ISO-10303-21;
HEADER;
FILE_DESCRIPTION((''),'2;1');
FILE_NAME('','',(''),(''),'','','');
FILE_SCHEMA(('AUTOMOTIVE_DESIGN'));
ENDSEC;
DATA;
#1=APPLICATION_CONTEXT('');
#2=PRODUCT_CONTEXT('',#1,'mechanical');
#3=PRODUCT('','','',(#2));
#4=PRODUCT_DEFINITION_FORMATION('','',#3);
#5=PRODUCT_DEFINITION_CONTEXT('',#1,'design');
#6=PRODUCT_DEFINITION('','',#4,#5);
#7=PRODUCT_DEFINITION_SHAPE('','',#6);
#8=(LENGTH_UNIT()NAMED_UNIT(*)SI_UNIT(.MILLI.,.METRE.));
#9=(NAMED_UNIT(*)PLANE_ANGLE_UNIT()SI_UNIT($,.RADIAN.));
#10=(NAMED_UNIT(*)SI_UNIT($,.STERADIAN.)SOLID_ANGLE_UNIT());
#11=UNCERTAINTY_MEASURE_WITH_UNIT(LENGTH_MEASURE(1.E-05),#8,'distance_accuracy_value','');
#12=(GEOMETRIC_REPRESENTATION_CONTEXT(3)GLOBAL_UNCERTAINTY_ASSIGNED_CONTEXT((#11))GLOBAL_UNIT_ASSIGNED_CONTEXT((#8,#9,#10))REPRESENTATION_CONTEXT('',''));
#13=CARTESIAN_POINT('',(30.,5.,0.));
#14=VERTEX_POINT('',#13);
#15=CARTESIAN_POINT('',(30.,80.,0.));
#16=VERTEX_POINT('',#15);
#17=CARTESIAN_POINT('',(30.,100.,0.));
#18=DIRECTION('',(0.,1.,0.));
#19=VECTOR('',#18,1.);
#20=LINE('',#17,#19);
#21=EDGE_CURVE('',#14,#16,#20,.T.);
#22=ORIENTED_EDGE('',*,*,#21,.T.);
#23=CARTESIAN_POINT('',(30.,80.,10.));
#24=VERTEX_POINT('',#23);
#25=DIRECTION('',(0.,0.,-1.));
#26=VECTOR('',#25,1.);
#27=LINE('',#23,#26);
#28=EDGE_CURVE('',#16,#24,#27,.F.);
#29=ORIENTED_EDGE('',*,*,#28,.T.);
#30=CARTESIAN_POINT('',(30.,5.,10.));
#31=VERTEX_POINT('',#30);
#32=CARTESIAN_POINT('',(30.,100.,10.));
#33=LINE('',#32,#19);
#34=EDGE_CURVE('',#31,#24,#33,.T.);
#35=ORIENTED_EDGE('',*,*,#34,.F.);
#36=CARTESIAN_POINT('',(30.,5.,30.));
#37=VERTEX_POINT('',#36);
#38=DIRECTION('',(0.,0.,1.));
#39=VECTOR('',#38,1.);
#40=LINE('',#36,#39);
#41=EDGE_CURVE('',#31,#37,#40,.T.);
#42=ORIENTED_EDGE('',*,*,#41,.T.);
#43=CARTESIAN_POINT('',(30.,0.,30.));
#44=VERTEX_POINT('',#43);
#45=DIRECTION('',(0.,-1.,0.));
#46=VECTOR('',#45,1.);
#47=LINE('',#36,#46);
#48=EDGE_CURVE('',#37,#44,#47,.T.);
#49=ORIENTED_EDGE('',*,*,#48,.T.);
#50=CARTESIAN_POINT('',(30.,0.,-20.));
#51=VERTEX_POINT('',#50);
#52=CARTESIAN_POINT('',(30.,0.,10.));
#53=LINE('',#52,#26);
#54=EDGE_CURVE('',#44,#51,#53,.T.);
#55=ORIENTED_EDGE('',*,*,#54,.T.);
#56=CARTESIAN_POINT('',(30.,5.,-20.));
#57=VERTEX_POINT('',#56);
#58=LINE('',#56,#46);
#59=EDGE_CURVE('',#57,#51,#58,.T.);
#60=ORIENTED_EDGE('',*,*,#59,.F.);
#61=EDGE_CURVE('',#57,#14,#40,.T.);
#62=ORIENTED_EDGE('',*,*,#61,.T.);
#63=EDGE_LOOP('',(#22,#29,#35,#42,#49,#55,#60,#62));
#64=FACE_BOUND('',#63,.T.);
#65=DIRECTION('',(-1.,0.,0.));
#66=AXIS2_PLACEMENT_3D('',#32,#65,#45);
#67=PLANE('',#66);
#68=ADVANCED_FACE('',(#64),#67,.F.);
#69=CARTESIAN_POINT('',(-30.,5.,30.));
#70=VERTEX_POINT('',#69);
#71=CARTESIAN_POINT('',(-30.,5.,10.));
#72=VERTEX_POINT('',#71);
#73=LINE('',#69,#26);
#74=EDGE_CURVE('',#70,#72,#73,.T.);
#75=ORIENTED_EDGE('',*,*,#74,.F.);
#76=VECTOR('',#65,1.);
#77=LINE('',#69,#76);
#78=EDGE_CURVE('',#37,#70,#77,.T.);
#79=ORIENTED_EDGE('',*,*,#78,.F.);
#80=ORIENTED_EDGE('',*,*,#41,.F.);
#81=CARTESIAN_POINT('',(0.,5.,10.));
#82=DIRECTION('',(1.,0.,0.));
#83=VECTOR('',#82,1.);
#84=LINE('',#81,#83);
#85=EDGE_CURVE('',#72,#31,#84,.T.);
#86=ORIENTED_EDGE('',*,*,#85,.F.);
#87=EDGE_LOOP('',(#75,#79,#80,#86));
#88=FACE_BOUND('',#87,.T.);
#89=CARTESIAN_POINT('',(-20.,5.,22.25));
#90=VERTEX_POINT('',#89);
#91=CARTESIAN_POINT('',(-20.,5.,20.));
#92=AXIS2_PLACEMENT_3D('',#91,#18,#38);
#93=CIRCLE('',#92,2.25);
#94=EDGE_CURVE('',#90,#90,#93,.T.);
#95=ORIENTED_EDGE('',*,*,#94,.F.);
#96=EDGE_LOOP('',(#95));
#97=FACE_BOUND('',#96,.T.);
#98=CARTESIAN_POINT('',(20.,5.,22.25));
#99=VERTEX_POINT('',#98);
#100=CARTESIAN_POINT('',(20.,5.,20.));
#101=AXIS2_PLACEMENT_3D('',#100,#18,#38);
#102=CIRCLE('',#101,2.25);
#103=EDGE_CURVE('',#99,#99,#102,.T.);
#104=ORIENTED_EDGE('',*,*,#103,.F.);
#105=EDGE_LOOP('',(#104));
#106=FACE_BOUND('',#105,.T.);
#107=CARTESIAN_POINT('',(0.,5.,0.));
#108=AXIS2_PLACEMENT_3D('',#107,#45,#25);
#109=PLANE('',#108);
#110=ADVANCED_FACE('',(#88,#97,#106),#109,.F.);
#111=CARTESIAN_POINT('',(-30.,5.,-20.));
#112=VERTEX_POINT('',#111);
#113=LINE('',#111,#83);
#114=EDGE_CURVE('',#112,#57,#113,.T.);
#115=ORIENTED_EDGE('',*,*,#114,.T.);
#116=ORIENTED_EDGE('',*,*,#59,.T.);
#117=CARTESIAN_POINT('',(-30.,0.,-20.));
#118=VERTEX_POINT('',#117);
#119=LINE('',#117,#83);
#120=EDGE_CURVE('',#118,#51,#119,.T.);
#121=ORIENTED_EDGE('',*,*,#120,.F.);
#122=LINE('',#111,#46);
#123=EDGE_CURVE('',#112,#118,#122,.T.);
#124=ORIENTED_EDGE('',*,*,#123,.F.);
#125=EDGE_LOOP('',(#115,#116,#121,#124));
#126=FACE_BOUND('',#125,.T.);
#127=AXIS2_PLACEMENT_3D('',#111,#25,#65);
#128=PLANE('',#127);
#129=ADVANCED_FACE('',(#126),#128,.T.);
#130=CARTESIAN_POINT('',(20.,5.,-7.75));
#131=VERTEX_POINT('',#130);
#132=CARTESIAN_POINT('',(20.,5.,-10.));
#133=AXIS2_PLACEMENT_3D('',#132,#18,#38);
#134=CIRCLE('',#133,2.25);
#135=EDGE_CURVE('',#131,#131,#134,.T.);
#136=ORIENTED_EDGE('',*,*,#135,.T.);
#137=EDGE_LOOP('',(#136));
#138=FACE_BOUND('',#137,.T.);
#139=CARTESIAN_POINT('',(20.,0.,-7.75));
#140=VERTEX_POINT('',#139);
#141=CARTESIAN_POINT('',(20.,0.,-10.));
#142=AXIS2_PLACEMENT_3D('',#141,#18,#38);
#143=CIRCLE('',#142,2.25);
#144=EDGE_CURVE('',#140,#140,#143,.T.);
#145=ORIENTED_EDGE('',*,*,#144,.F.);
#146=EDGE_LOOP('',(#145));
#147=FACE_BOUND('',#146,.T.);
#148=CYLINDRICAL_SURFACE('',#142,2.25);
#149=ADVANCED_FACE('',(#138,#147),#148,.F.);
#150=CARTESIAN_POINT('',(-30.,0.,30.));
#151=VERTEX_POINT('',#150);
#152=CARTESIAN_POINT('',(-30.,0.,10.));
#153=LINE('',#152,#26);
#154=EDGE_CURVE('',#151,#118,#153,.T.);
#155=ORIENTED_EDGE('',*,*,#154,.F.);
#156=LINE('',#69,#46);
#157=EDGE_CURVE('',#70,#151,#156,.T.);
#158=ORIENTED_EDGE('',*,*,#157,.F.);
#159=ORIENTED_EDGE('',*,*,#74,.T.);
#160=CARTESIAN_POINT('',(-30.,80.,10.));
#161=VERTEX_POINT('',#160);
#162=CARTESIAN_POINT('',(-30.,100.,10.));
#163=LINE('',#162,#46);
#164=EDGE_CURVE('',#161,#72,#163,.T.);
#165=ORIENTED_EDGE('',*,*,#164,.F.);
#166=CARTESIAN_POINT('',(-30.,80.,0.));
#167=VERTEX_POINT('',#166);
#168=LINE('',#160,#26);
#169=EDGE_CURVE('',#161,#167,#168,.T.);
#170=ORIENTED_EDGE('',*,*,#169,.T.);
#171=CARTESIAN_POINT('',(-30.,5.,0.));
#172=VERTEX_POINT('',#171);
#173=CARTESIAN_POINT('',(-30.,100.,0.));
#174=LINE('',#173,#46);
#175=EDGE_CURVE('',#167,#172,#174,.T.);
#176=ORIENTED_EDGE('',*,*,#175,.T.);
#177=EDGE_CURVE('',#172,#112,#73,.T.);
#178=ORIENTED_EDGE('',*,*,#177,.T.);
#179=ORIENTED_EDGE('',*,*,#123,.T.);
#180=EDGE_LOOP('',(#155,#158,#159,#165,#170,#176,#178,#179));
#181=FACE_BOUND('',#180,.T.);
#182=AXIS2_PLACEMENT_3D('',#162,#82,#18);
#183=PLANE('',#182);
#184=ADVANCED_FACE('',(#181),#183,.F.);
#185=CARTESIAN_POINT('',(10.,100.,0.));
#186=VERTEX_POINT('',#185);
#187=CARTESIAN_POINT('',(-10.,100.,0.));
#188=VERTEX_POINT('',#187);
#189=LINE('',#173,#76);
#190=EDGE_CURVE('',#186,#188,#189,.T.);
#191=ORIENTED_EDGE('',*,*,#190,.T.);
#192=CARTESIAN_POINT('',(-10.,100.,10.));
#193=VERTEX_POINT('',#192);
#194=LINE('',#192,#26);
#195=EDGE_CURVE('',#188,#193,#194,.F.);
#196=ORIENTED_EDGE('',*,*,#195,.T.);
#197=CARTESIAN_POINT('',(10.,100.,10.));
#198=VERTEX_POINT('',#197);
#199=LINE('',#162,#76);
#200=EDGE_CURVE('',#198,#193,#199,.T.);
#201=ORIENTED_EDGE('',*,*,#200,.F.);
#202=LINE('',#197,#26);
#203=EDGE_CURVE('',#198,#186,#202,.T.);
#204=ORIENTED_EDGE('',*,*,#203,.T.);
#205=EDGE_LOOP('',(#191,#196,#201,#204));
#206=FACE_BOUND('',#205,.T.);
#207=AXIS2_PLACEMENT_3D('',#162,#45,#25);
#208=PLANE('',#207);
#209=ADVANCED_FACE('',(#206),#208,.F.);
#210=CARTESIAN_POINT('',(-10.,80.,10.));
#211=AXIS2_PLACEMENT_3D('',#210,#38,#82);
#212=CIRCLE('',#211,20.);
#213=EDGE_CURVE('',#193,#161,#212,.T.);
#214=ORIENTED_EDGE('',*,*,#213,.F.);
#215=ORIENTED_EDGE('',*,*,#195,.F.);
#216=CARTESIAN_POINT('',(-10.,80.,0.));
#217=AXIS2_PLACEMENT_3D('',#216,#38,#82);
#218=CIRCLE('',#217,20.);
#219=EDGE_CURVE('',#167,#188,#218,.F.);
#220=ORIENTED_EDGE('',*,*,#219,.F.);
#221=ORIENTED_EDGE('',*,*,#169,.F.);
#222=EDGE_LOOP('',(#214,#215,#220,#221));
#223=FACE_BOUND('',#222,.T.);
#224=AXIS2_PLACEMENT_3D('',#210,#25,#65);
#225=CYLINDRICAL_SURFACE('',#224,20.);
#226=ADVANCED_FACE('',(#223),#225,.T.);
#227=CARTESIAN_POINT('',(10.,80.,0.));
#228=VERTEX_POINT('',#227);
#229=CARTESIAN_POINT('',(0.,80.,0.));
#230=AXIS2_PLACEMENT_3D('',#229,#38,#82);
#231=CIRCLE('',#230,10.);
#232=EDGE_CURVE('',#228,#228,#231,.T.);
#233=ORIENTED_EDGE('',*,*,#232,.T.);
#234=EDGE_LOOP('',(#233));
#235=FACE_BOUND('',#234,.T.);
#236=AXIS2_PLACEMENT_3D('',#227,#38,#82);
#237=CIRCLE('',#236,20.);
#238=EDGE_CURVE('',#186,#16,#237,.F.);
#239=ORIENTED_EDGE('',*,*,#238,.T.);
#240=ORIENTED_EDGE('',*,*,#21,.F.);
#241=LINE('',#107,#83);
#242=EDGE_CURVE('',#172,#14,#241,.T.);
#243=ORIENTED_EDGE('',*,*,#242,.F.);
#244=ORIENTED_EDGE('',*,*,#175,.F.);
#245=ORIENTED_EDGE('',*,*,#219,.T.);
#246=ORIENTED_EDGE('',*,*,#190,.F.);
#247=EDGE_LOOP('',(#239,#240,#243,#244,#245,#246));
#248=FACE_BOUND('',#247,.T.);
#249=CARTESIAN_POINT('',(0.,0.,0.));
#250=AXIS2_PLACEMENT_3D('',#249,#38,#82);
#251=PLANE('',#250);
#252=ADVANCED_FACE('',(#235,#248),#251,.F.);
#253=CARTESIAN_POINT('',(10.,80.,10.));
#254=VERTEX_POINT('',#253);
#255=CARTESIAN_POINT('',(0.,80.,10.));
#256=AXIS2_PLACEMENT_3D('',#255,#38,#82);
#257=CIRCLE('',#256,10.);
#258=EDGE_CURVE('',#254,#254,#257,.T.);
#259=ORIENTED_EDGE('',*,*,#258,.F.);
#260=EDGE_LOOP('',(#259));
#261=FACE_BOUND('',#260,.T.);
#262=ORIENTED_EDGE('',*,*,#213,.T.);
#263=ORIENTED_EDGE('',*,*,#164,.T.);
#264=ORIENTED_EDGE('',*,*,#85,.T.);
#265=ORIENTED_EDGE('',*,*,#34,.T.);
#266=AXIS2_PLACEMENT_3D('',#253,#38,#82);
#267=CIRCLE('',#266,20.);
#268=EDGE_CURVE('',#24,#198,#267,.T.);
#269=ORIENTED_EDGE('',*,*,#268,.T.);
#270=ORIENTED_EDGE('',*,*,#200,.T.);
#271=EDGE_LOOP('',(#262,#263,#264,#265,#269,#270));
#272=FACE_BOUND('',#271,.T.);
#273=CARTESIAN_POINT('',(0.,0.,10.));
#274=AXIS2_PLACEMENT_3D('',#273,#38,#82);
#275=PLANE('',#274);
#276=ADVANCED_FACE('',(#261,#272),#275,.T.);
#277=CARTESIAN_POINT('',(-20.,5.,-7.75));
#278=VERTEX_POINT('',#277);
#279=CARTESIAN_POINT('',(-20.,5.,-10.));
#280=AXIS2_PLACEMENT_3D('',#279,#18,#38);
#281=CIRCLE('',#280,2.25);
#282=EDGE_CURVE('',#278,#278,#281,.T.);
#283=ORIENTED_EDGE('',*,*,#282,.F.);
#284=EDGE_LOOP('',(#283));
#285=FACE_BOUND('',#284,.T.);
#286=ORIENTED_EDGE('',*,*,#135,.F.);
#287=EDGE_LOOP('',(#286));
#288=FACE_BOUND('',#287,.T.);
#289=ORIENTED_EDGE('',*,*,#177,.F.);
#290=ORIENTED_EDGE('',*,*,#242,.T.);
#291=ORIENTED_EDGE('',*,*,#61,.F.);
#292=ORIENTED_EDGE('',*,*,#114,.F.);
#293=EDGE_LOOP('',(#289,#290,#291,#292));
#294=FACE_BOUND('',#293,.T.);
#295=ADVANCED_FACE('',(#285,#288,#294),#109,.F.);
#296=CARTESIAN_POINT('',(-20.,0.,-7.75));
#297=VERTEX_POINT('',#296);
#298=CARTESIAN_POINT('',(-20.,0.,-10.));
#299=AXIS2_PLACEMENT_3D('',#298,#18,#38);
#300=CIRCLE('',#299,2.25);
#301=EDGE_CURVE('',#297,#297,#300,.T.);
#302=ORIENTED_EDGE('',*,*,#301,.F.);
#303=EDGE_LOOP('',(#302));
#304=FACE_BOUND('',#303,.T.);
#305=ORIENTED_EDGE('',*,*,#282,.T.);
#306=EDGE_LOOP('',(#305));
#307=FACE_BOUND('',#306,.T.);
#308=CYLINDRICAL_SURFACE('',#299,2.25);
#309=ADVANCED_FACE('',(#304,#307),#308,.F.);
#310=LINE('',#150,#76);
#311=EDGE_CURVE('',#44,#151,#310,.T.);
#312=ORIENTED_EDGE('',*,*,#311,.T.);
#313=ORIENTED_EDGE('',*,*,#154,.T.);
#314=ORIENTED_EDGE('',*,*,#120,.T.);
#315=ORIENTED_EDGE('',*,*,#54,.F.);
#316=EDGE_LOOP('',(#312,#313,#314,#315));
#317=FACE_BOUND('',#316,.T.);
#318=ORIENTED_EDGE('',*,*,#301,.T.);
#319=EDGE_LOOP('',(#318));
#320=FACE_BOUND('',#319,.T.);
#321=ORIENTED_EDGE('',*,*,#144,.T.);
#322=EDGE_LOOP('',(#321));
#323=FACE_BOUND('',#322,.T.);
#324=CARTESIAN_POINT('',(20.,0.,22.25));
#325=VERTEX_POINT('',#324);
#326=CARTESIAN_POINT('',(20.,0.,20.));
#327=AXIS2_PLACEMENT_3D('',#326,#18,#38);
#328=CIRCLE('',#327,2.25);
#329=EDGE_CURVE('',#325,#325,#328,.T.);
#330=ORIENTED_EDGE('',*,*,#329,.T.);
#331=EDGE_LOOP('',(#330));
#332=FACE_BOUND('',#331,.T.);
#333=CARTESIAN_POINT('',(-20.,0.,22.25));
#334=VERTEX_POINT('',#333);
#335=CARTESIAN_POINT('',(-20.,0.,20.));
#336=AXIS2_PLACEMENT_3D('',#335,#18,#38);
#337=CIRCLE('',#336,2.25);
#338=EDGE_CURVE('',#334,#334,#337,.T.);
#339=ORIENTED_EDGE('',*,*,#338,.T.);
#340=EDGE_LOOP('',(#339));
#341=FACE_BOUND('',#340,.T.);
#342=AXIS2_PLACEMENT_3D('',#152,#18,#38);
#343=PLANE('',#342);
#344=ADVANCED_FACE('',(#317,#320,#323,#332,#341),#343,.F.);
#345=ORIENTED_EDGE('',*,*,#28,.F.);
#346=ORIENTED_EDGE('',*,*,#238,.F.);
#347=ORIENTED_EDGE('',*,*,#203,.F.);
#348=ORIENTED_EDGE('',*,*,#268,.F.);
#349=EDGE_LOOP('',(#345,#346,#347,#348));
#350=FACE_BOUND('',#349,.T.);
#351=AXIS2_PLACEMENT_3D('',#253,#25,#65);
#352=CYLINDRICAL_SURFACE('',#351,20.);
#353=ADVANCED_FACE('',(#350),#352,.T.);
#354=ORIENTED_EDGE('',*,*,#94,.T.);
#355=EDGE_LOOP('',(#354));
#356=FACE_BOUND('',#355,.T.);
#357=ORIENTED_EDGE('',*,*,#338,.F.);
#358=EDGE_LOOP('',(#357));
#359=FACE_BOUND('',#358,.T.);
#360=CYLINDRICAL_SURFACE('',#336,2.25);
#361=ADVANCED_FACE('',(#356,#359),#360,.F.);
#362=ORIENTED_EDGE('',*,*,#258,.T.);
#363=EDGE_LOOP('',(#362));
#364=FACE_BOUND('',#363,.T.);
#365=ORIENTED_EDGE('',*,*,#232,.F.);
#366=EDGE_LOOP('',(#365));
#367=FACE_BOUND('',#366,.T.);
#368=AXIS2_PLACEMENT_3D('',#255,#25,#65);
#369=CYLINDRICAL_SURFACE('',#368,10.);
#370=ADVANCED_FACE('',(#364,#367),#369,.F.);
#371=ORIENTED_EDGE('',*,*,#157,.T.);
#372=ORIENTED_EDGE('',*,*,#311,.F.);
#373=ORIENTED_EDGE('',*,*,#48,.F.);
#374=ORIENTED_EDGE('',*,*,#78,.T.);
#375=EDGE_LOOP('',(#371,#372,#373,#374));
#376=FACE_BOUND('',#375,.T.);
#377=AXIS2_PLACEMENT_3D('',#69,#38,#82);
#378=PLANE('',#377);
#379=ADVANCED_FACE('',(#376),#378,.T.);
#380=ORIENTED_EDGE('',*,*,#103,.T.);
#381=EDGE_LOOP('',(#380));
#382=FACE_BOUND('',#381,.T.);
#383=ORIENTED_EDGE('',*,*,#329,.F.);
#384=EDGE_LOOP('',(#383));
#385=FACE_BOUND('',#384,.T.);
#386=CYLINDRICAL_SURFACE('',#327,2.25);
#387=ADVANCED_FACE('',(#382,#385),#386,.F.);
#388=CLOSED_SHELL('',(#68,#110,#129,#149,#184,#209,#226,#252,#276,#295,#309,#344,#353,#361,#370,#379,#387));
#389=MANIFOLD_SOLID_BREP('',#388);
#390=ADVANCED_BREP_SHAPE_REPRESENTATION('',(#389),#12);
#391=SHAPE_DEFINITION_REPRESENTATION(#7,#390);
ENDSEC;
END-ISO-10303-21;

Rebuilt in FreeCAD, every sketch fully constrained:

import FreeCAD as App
import Part
import Sketcher
from FreeCAD import Vector
Q = App.Units.Quantity


def edges_at(feature, points):
    """Names of the edges that pass closest to the given points."""
    edges = feature.Shape.Edges
    near = lambda p: min(range(len(edges)), key=lambda i: edges[i].distToShape(Part.Vertex(*p))[0])
    return sorted({f"Edge{near(p) + 1}" for p in points})

doc = App.newDocument("Part")
body = doc.addObject("PartDesign::Body", "Body")

sketch1 = body.newObject("Sketcher::SketchObject", "Sketch")
sketch1.AttachmentSupport = (doc.getObject("XY_Plane"), [""])
sketch1.MapMode = "FlatFace"
sketch1.addGeometry([
    Part.LineSegment(Vector(-30, 100, 0), Vector(-30, 0, 0)),
    Part.LineSegment(Vector(-30, 0, 0), Vector(30, 0, 0)),
    Part.LineSegment(Vector(30, 0, 0), Vector(30, 100, 0)),
    Part.LineSegment(Vector(30, 100, 0), Vector(-30, 100, 0)),
    Part.Circle(Vector(0, 80, 0), Vector(0, 0, 1), 10),
], False)
sketch1.addConstraint([
    Sketcher.Constraint("Coincident", 0, 2, 1, 1),
    Sketcher.Constraint("Coincident", 1, 2, 2, 1),
    Sketcher.Constraint("Coincident", 2, 2, 3, 1),
    Sketcher.Constraint("Coincident", 3, 2, 0, 1),
    Sketcher.Constraint("Vertical", 0),
    Sketcher.Constraint("Horizontal", 1),
    Sketcher.Constraint("Vertical", 2),
    Sketcher.Constraint("Horizontal", 3),
    Sketcher.Constraint("Symmetric", 0, 2, 1, 2, -1, 1),
    Sketcher.Constraint("PointOnObject", 4, 3, -2),
    Sketcher.Constraint("Diameter", 4, Q("20 mm")),
    Sketcher.Constraint("DistanceX", 1, 1, 1, 2, Q("60 mm")),
    Sketcher.Constraint("DistanceY", 0, 2, 0, 1, Q("100 mm")),
    Sketcher.Constraint("DistanceY", -1, 1, 4, 3, Q("80 mm")),
])
pad1 = body.newObject("PartDesign::Pad", "Pad")
pad1.Profile = sketch1
pad1.Length = 10

sketch2 = body.newObject("Sketcher::SketchObject", "Sketch001")
sketch2.AttachmentSupport = (doc.getObject("XY_Plane"), [""])
sketch2.MapMode = "FlatFace"
sketch2.addGeometry(Part.Circle(Vector(0, 80, 0), Vector(0, 0, 1), 10), False)
sketch2.addConstraint([
    Sketcher.Constraint("PointOnObject", 0, 3, -2),
    Sketcher.Constraint("Diameter", 0, Q("20 mm")),
    Sketcher.Constraint("DistanceY", -1, 1, 0, 3, Q("80 mm")),
])
pad2 = body.newObject("PartDesign::Pad", "Pad001")
pad2.Profile = sketch2
pad2.Length = 2
doc.recompute()

fillet = body.newObject("PartDesign::Fillet", "Fillet")
fillet.Base = (pad2, edges_at(pad2, [(-30, 100, 5), (30, 100, 5)]))
fillet.Radius = 20

sketch3 = body.newObject("Sketcher::SketchObject", "Sketch002")
sketch3.AttachmentSupport = (doc.getObject("XZ_Plane"), [""])
sketch3.MapMode = "FlatFace"
sketch3.addGeometry([
    Part.LineSegment(Vector(-30, 30, 0), Vector(-30, -20, 0)),
    Part.LineSegment(Vector(-30, -20, 0), Vector(30, -20, 0)),
    Part.LineSegment(Vector(30, -20, 0), Vector(30, 30, 0)),
    Part.LineSegment(Vector(30, 30, 0), Vector(-30, 30, 0)),
], False)
sketch3.addConstraint([
    Sketcher.Constraint("Coincident", 0, 2, 1, 1),
    Sketcher.Constraint("Coincident", 1, 2, 2, 1),
    Sketcher.Constraint("Coincident", 2, 2, 3, 1),
    Sketcher.Constraint("Coincident", 3, 2, 0, 1),
    Sketcher.Constraint("Vertical", 0),
    Sketcher.Constraint("Horizontal", 1),
    Sketcher.Constraint("Vertical", 2),
    Sketcher.Constraint("Horizontal", 3),
    Sketcher.Constraint("DistanceX", 1, 1, 1, 2, Q("60 mm")),
    Sketcher.Constraint("DistanceY", 0, 2, 0, 1, Q("50 mm")),
    Sketcher.Constraint("DistanceX", 0, 2, -1, 1, Q("30 mm")),
    Sketcher.Constraint("DistanceY", 0, 2, -1, 1, Q("20 mm")),
])
pad3 = body.newObject("PartDesign::Pad", "Pad002")
pad3.Profile = sketch3
pad3.Length = 5
pad3.Reversed = True

sketch4 = body.newObject("Sketcher::SketchObject", "Sketch003")
sketch4.AttachmentSupport = (doc.getObject("XZ_Plane"), [""])
sketch4.MapMode = "FlatFace"
sketch4.AttachmentOffset = App.Placement(Vector(0, 0, -5), App.Rotation())
sketch4.addGeometry([
    Part.Circle(Vector(-20, -10, 0), Vector(0, 0, 1), 2.2),
    Part.Circle(Vector(20, -10, 0), Vector(0, 0, 1), 2.2),
    Part.Circle(Vector(-20, 20, 0), Vector(0, 0, 1), 2.2),
    Part.Circle(Vector(20, 20, 0), Vector(0, 0, 1), 2.2),
], False)
sketch4.addConstraint([
    Sketcher.Constraint("Equal", 0, 1),
    Sketcher.Constraint("Equal", 1, 2),
    Sketcher.Constraint("Equal", 2, 3),
    Sketcher.Constraint("Symmetric", 0, 3, 1, 3, -2),
    Sketcher.Constraint("Symmetric", 2, 3, 3, 3, -2),
    Sketcher.Constraint("Vertical", 0, 3, 2, 3),
    Sketcher.Constraint("Diameter", 0, Q("4.5 mm")),
    Sketcher.Constraint("DistanceX", 0, 3, -1, 1, Q("20 mm")),
    Sketcher.Constraint("DistanceY", 0, 3, -1, 1, Q("10 mm")),
    Sketcher.Constraint("DistanceY", -1, 1, 2, 3, Q("20 mm")),
])
pocket1 = body.newObject("PartDesign::Pocket", "Pocket")
pocket1.Profile = sketch4
pocket1.Type = "ThroughAll"
pocket1.Reversed = True

sketch5 = body.newObject("Sketcher::SketchObject", "Sketch004")
sketch5.AttachmentSupport = (doc.getObject("XY_Plane"), [""])
sketch5.MapMode = "FlatFace"
sketch5.AttachmentOffset = App.Placement(Vector(0, 0, -8), App.Rotation())
sketch5.addGeometry(Part.Circle(Vector(0, 80, 0), Vector(0, 0, 1), 10), False)
sketch5.addConstraint([
    Sketcher.Constraint("PointOnObject", 0, 3, -2),
    Sketcher.Constraint("Diameter", 0, Q("20 mm")),
    Sketcher.Constraint("DistanceY", -1, 1, 0, 3, Q("80 mm")),
])
pocket2 = body.newObject("PartDesign::Pocket", "Pocket001")
pocket2.Profile = sketch5
pocket2.Length = 10
pocket2.Reversed = True

doc.recompute()
